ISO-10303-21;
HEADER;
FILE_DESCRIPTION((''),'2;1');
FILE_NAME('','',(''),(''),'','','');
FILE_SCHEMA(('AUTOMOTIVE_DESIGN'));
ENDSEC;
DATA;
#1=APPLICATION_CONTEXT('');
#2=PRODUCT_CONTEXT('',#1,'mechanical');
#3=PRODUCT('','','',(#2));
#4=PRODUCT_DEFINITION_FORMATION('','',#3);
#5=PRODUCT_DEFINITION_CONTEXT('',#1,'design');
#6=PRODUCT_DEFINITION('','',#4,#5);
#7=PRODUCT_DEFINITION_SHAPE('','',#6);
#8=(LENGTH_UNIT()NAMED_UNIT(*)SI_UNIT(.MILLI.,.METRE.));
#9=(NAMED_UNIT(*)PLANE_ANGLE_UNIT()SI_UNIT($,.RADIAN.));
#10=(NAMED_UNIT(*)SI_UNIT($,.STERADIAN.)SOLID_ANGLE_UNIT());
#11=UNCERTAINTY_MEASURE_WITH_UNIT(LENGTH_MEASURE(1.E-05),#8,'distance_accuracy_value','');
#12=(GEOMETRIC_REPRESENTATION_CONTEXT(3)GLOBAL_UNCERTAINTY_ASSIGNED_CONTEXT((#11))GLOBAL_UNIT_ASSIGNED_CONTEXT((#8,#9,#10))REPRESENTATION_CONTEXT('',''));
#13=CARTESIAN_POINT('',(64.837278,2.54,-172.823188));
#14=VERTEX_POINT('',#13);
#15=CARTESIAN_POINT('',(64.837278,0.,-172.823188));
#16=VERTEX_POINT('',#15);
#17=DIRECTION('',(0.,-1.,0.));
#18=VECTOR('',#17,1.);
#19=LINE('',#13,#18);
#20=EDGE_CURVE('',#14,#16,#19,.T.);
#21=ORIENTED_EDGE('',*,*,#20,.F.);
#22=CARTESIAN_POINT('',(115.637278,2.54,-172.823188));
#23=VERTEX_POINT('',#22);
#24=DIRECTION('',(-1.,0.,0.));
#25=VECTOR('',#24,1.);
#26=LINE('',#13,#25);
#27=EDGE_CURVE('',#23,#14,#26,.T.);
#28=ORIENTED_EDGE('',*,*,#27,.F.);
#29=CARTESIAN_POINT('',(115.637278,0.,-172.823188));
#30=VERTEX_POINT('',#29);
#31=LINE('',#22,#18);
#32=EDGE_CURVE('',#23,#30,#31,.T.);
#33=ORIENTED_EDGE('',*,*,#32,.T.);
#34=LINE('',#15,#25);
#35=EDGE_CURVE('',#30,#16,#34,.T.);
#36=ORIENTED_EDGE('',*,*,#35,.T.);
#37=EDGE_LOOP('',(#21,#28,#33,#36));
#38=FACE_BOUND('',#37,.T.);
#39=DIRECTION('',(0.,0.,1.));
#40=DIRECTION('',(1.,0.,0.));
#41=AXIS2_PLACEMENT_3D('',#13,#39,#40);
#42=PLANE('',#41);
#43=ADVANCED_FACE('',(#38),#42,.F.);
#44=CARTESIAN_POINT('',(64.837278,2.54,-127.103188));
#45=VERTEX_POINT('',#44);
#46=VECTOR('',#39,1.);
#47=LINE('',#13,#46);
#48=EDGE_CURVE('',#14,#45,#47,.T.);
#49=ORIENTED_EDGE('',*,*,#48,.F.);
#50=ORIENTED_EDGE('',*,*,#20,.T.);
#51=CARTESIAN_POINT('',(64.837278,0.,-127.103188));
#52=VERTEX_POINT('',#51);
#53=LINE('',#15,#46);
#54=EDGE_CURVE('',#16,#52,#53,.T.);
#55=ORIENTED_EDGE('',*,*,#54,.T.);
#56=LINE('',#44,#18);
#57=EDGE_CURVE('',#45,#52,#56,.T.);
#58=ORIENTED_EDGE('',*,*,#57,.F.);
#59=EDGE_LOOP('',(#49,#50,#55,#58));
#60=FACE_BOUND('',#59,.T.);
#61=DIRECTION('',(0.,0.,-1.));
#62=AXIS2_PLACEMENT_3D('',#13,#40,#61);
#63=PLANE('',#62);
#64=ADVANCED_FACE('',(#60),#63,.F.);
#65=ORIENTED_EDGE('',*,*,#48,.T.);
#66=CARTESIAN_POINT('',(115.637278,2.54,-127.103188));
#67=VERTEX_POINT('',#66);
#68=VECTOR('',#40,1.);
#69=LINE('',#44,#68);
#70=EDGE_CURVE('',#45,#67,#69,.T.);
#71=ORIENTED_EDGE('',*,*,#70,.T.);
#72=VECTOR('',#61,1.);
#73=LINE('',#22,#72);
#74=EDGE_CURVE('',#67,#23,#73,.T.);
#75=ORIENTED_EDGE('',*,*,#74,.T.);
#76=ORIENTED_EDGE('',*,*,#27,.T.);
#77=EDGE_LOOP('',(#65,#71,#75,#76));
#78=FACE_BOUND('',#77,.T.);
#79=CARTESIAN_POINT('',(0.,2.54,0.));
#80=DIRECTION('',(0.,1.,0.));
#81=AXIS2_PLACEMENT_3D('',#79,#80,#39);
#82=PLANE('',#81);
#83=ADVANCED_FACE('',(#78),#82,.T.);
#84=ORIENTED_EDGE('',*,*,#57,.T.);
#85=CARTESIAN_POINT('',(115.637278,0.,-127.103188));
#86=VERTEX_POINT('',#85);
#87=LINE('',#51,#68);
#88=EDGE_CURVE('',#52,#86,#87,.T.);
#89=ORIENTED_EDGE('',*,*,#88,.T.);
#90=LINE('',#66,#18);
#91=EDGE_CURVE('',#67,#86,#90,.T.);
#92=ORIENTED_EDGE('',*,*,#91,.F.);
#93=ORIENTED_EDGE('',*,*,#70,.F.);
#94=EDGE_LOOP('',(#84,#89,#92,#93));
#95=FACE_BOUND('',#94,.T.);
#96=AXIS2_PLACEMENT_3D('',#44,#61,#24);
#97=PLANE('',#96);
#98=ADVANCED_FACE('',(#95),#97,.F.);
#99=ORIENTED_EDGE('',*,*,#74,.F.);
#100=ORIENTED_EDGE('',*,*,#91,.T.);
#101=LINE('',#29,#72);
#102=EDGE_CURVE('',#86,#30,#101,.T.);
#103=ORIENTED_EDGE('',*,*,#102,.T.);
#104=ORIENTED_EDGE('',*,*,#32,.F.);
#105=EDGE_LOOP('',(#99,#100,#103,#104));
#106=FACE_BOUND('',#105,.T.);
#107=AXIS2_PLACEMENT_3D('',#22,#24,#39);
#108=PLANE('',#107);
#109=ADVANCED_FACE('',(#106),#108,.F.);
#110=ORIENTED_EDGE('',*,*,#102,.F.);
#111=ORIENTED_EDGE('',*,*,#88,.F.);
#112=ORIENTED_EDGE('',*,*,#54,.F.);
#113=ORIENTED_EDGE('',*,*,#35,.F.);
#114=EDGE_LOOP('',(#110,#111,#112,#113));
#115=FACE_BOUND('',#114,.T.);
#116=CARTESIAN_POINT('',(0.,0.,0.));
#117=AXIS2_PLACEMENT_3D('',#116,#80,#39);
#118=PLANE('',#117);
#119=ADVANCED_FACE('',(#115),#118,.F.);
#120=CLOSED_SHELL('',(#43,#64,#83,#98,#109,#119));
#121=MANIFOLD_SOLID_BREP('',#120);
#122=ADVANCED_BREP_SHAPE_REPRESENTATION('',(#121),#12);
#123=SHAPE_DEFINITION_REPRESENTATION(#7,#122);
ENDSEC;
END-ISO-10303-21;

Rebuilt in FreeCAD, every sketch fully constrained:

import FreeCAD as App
import Part
import Sketcher
from FreeCAD import Vector
Q = App.Units.Quantity

doc = App.newDocument("Part")
params = doc.addObject("Spreadsheet::Sheet", "Params")
for row, (alias, value) in enumerate([
    ("sketch1_width", "2 in"),
    ("sketch1_height", "1.8 in"),
    ("pad1_length", "0.1 in"),
], start=1):
    params.set(f"A{row}", alias)
    params.set(f"B{row}", "=" + value)
    params.setAlias(f"B{row}", alias)

body = doc.addObject("PartDesign::Body", "Body")

sketch1 = doc.addObject("Sketcher::SketchObject", "Sketch")
body.addObject(sketch1)
sketch1.AttachmentSupport = (doc.XZ_Plane, [""])
sketch1.MapMode = "FlatFace"
sketch1.addGeometry([
    Part.LineSegment(Vector(64.837278, -172.823188, 0), Vector(64.837278, -127.103188, 0)),
    Part.LineSegment(Vector(64.837278, -127.103188, 0), Vector(115.637278, -127.103188, 0)),
    Part.LineSegment(Vector(115.637278, -127.103188, 0), Vector(115.637278, -172.823188, 0)),
    Part.LineSegment(Vector(115.637278, -172.823188, 0), Vector(64.837278, -172.823188, 0)),
], False)
sketch1.addConstraint([
    Sketcher.Constraint("Coincident", 0, 2, 1, 1),
    Sketcher.Constraint("Coincident", 1, 2, 2, 1),
    Sketcher.Constraint("Coincident", 2, 2, 3, 1),
    Sketcher.Constraint("Coincident", 3, 2, 0, 1),
    Sketcher.Constraint("Vertical", 0),
    Sketcher.Constraint("Horizontal", 1),
    Sketcher.Constraint("Vertical", 2),
    Sketcher.Constraint("Horizontal", 3),
    Sketcher.Constraint("DistanceX", 1, 1, 1, 2, Q("2 in")),
    Sketcher.Constraint("DistanceY", 0, 1, 0, 2, Q("1.8 in")),
    Sketcher.Constraint("DistanceY", 0, 2, -1, 1, Q("127.103188 mm")),
    Sketcher.Constraint("DistanceX", -1, 1, 0, 2, Q("64.837278 mm")),
])
sketch1.setExpression("Constraints[8]", "Params.sketch1_width")
sketch1.setExpression("Constraints[9]", "Params.sketch1_height")
pad1 = doc.addObject("PartDesign::Pad", "Pad")
body.addObject(pad1)
pad1.Profile = sketch1
pad1.setExpression("Length", "Params.pad1_length")
pad1.Reversed = True

doc.recompute()
